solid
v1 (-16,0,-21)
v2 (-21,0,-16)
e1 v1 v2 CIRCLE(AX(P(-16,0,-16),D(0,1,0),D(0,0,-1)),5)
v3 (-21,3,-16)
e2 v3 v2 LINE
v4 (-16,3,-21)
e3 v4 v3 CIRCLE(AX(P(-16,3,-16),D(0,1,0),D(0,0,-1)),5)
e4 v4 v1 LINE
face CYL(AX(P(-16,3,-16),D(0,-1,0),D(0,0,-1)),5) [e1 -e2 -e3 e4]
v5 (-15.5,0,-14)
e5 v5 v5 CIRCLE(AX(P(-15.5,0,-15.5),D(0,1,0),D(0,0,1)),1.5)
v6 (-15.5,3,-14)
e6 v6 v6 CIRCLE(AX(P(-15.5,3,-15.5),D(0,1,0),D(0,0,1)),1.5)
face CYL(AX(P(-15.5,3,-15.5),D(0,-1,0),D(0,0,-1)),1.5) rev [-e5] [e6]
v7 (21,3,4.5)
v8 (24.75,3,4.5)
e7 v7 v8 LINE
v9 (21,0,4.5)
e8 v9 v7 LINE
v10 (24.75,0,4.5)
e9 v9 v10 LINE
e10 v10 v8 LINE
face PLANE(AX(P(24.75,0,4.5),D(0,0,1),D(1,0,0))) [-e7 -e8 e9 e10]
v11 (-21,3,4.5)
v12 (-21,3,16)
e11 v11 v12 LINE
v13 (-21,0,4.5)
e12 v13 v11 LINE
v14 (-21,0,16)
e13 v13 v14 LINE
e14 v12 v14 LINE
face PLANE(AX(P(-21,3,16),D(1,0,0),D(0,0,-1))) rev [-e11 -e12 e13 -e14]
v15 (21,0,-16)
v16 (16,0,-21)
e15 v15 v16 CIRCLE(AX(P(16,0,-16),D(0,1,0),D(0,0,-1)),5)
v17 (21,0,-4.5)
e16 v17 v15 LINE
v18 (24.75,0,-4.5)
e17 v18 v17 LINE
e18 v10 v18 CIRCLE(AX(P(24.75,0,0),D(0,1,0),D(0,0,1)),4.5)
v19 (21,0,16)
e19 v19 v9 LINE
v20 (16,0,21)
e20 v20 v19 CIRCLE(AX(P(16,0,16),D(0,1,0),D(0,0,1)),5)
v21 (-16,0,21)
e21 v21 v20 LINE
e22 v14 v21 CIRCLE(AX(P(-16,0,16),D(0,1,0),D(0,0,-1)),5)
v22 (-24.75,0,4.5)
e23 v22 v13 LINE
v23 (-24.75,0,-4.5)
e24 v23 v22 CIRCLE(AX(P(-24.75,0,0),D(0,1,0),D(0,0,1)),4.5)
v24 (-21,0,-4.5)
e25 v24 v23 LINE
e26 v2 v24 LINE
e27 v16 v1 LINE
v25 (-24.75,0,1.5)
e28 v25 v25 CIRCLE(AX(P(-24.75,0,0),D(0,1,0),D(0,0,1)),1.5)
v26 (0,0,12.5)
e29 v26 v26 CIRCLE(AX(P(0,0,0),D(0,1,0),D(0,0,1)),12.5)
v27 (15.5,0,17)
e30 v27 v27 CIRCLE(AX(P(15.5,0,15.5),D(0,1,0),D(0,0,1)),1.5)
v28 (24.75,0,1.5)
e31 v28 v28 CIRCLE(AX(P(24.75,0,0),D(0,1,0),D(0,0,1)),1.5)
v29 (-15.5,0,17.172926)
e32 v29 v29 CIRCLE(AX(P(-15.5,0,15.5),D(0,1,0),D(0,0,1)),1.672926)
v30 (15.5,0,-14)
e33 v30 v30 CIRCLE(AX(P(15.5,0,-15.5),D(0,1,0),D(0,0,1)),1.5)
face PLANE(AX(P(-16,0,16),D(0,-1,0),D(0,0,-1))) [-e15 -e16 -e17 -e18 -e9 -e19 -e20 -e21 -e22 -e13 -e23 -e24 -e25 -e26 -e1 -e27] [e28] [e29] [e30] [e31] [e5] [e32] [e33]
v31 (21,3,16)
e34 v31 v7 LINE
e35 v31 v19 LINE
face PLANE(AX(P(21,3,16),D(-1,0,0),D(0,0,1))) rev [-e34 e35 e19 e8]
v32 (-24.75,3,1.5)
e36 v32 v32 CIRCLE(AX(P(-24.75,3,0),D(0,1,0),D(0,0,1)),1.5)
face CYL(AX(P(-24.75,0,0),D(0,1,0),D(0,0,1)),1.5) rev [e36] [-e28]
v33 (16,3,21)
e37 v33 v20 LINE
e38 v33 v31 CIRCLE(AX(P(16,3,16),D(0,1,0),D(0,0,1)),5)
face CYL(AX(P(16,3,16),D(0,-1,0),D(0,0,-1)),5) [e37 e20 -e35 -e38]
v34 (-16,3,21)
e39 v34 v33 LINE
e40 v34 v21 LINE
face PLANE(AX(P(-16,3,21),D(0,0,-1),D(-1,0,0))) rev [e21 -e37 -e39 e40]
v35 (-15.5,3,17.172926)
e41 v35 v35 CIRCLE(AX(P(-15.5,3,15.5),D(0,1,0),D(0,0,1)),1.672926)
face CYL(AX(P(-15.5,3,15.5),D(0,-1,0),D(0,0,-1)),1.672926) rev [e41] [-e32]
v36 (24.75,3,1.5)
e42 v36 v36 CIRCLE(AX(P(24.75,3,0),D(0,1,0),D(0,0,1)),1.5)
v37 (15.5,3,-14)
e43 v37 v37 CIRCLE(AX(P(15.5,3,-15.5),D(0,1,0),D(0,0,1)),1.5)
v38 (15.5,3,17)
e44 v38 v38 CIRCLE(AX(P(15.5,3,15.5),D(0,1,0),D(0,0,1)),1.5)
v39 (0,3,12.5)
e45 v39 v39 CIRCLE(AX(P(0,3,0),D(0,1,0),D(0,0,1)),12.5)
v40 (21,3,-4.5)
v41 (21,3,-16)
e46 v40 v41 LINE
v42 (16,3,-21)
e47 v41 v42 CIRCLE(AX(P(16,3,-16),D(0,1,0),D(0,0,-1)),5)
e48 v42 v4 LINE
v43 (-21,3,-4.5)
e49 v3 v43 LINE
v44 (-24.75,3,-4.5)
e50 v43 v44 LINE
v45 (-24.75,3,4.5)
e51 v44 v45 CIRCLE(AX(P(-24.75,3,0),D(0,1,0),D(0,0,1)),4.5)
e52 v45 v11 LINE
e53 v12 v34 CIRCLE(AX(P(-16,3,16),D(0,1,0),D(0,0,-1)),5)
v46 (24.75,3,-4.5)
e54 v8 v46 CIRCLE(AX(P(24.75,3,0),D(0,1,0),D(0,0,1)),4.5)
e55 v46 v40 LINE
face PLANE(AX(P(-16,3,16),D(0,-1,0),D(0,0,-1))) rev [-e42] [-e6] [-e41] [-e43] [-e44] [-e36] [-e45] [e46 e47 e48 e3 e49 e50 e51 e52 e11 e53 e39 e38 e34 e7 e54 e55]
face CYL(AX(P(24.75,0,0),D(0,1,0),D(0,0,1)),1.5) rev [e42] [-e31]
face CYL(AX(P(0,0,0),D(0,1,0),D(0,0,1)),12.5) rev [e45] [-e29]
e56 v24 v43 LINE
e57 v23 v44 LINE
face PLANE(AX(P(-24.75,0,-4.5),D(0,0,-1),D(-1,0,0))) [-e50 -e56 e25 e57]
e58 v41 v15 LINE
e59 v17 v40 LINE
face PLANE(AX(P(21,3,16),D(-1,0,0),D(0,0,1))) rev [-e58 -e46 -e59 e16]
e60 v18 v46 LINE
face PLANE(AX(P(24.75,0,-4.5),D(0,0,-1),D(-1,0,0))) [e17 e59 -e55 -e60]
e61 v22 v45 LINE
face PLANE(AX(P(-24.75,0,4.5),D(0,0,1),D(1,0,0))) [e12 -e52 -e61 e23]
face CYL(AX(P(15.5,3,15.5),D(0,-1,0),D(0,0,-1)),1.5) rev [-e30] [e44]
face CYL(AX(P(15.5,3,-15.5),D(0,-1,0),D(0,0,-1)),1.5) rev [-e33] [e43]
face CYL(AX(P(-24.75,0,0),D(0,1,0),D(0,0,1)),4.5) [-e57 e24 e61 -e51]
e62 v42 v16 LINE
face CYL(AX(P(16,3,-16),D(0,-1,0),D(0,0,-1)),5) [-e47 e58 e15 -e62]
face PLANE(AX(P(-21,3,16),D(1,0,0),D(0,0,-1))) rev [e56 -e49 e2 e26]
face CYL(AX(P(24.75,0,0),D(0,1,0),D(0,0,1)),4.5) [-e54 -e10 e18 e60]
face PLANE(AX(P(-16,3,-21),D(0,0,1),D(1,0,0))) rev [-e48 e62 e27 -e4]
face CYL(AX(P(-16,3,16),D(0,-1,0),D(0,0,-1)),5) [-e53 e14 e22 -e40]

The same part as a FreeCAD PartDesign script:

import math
import FreeCAD as App
import Part
import Sketcher
from FreeCAD import Vector
Q = App.Units.Quantity

doc = App.newDocument("Part")
body = doc.addObject("PartDesign::Body", "Body")

# Sketch on XZ plane
sketch1 = doc.addObject("Sketcher::SketchObject", "Sketch")
body.addObject(sketch1)
sketch1.AttachmentSupport = (doc.XZ_Plane, [""])
sketch1.MapMode = "FlatFace"
sketch1.addGeometry(Part.LineSegment(Vector(-16, 21, 0), Vector(16, 21, 0)), False)
sketch1.addGeometry(Part.ArcOfCircle(Part.Circle(Vector(16, 16, 0), Vector(0, 0, 1), 5), math.radians(0), math.radians(90)), False)
sketch1.addGeometry(Part.LineSegment(Vector(21, 16, 0), Vector(21, -16, 0)), False)
sketch1.addGeometry(Part.ArcOfCircle(Part.Circle(Vector(16, -16, 0), Vector(0, 0, 1), 5), math.radians(-90), math.radians(0)), False)
sketch1.addGeometry(Part.LineSegment(Vector(16, -21, 0), Vector(-16, -21, 0)), False)
sketch1.addGeometry(Part.ArcOfCircle(Part.Circle(Vector(-16, -16, 0), Vector(0, 0, 1), 5), math.radians(180), math.radians(270)), False)
sketch1.addGeometry(Part.LineSegment(Vector(-21, -16, 0), Vector(-21, 16, 0)), False)
sketch1.addGeometry(Part.ArcOfCircle(Part.Circle(Vector(-16, 16, 0), Vector(0, 0, 1), 5), math.radians(90), math.radians(180)), False)
sketch1.addGeometry(Part.Circle(Vector(-15.5, 15.5, 0), Vector(0, 0, 1), 1.7), False)
sketch1.addGeometry(Part.Circle(Vector(15.5, 15.5, 0), Vector(0, 0, 1), 1.5), False)
sketch1.addGeometry(Part.Circle(Vector(-15.5, -15.5, 0), Vector(0, 0, 1), 1.5), False)
sketch1.addGeometry(Part.Circle(Vector(15.5, -15.5, 0), Vector(0, 0, 1), 1.5), False)
sketch1.addConstraint(Sketcher.Constraint("Tangent", 0, 2, 1, 2))
sketch1.addConstraint(Sketcher.Constraint("Tangent", 1, 1, 2, 1))
sketch1.addConstraint(Sketcher.Constraint("Tangent", 2, 2, 3, 2))
sketch1.addConstraint(Sketcher.Constraint("Tangent", 3, 1, 4, 1))
sketch1.addConstraint(Sketcher.Constraint("Tangent", 4, 2, 5, 2))
sketch1.addConstraint(Sketcher.Constraint("Tangent", 5, 1, 6, 1))
sketch1.addConstraint(Sketcher.Constraint("Tangent", 6, 2, 7, 2))
sketch1.addConstraint(Sketcher.Constraint("Tangent", 7, 1, 0, 1))
sketch1.addConstraint(Sketcher.Constraint("Horizontal", 0))
sketch1.addConstraint(Sketcher.Constraint("Vertical", 2))
sketch1.addConstraint(Sketcher.Constraint("Horizontal", 4))
sketch1.addConstraint(Sketcher.Constraint("Vertical", 6))
sketch1.addConstraint(Sketcher.Constraint("Equal", 1, 3))
sketch1.addConstraint(Sketcher.Constraint("Equal", 3, 5))
sketch1.addConstraint(Sketcher.Constraint("Equal", 5, 7))
sketch1.addConstraint(Sketcher.Constraint("Equal", 9, 10))
sketch1.addConstraint(Sketcher.Constraint("Equal", 10, 11))
sketch1.addConstraint(Sketcher.Constraint("Symmetric", 1, 3, 5, 3, -1, 1))
sketch1.addConstraint(Sketcher.Constraint("Symmetric", 9, 3, 10, 3, -1, 1))
sketch1.addConstraint(Sketcher.Constraint("Symmetric", 8, 3, 11, 3, -1, 1))
sketch1.addConstraint(Sketcher.Constraint("Symmetric", 8, 3, 9, 3, -2))
sketch1.addConstraint(Sketcher.Constraint("Equal", 4, 2))
sketch1.addConstraint(Sketcher.Constraint("Diameter", 9, Q("3 mm")))
sketch1.addConstraint(Sketcher.Constraint("Radius", 1, Q("5 mm")))
sketch1.addConstraint(Sketcher.Constraint("DistanceX", 0, 1, 0, 2, Q("32 mm")))
sketch1.addConstraint(Sketcher.Constraint("DistanceX", 8, 3, 9, 3, Q("31 mm")))
sketch1.addConstraint(Sketcher.Constraint("DistanceY", 10, 3, 8, 3, Q("31 mm")))
sketch1.addConstraint(Sketcher.Constraint("Diameter", 8, Q("3.345852 mm")))
pad1 = doc.addObject("PartDesign::Pad", "Pad")
body.addObject(pad1)
pad1.Profile = sketch1
pad1.Length = 3
pad1.Reversed = True

# Sketch on XZ plane
sketch2 = doc.addObject("Sketcher::SketchObject", "Sketch001")
body.addObject(sketch2)
sketch2.AttachmentSupport = (doc.XZ_Plane, [""])
sketch2.MapMode = "FlatFace"
sketch2.AttachmentOffset = App.Placement(Vector(0, 0, -3), App.Rotation())
sketch2.addGeometry(Part.Circle(Vector(0, 0, 0), Vector(0, 0, 1), 12), False)
sketch2.addConstraint(Sketcher.Constraint("Coincident", 0, 3, -1, 1))
sketch2.addConstraint(Sketcher.Constraint("Diameter", 0, Q("25 mm")))
pocket1 = doc.addObject("PartDesign::Pocket", "Pocket")
body.addObject(pocket1)
pocket1.Profile = sketch2
pocket1.Type = "ThroughAll"
pocket1.Reversed = True

# Sketch on XZ plane
sketch3 = doc.addObject("Sketcher::SketchObject", "Sketch002")
body.addObject(sketch3)
sketch3.AttachmentSupport = (doc.XZ_Plane, [""])
sketch3.MapMode = "FlatFace"
sketch3.AttachmentOffset = App.Placement(Vector(0, 0, -3), App.Rotation())
sketch3.addGeometry(Part.LineSegment(Vector(-21, -4.5, 0), Vector(-24.8, -4.5, 0)), False)
sketch3.addGeometry(Part.ArcOfCircle(Part.Circle(Vector(-24.8, 0, 0), Vector(0, 0, 1), 4.5), math.radians(90), math.radians(270)), False)
sketch3.addGeometry(Part.LineSegment(Vector(-24.8, 4.5, 0), Vector(-21, 4.5, 0)), False)
sketch3.addGeometry(Part.LineSegment(Vector(-21, 4.5, 0), Vector(-21, -4.5, 0)), False)
sketch3.addGeometry(Part.Circle(Vector(-24.8, 0, 0), Vector(0, 0, 1), 1.5), False)
sketch3.addGeometry(Part.LineSegment(Vector(21, 4.5, 0), Vector(24.8, 4.5, 0)), False)
sketch3.addGeometry(Part.ArcOfCircle(Part.Circle(Vector(24.8, 0, 0), Vector(0, 0, 1), 4.5), math.radians(-90), math.radians(90)), False)
sketch3.addGeometry(Part.LineSegment(Vector(24.8, -4.5, 0), Vector(21, -4.5, 0)), False)
sketch3.addGeometry(Part.LineSegment(Vector(21, -4.5, 0), Vector(21, 4.5, 0)), False)
sketch3.addGeometry(Part.Circle(Vector(24.8, 0, 0), Vector(0, 0, 1), 1.5), False)
sketch3.addConstraint(Sketcher.Constraint("Tangent", 0, 2, 1, 2))
sketch3.addConstraint(Sketcher.Constraint("Tangent", 1, 1, 2, 1))
sketch3.addConstraint(Sketcher.Constraint("Coincident", 2, 2, 3, 1))
sketch3.addConstraint(Sketcher.Constraint("Coincident", 3, 2, 0, 1))
sketch3.addConstraint(Sketcher.Constraint("Tangent", 5, 2, 6, 2))
sketch3.addConstraint(Sketcher.Constraint("Tangent", 6, 1, 7, 1))
sketch3.addConstraint(Sketcher.Constraint("Coincident", 7, 2, 8, 1))
sketch3.addConstraint(Sketcher.Constraint("Coincident", 8, 2, 5, 1))
sketch3.addConstraint(Sketcher.Constraint("Horizontal", 0))
sketch3.addConstraint(Sketcher.Constraint("Horizontal", 2))
sketch3.addConstraint(Sketcher.Constraint("Vertical", 3))
sketch3.addConstraint(Sketcher.Constraint("Horizontal", 5))
sketch3.addConstraint(Sketcher.Constraint("Horizontal", 7))
sketch3.addConstraint(Sketcher.Constraint("Vertical", 8))
sketch3.addConstraint(Sketcher.Constraint("Coincident", 4, 3, 1, 3))
sketch3.addConstraint(Sketcher.Constraint("Coincident", 9, 3, 6, 3))
sketch3.addConstraint(Sketcher.Constraint("Equal", 1, 6))
sketch3.addConstraint(Sketcher.Constraint("Equal", 4, 9))
sketch3.addConstraint(Sketcher.Constraint("Symmetric", 1, 3, 6, 3, -1, 1))
sketch3.addConstraint(Sketcher.Constraint("Symmetric", 3, 2, 7, 2, -2))
sketch3.addConstraint(Sketcher.Constraint("Diameter", 4, Q("3 mm")))
sketch3.addConstraint(Sketcher.Constraint("Radius", 1, Q("4.5 mm")))
sketch3.addConstraint(Sketcher.Constraint("DistanceX", 2, 2, -1, 1, Q("21 mm")))
sketch3.addConstraint(Sketcher.Constraint("DistanceX", 0, 2, 0, 1, Q("3.75 mm")))
pad2 = doc.addObject("PartDesign::Pad", "Pad001")
body.addObject(pad2)
pad2.Profile = sketch3
pad2.Length = 3

doc.recompute()
